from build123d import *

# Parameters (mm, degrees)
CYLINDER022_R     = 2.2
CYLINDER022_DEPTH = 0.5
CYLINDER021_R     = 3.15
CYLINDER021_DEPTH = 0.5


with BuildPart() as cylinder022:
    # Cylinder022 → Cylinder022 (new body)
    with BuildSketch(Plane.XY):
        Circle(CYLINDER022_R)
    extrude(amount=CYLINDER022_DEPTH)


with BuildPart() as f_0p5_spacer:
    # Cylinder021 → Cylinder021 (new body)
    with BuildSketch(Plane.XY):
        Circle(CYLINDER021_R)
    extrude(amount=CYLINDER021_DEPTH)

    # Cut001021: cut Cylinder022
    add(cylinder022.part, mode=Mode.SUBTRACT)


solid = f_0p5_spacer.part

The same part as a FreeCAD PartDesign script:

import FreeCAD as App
import Part
import Sketcher
from FreeCAD import Vector
Q = App.Units.Quantity

doc = App.newDocument("Part")
body = doc.addObject("PartDesign::Body", "Body")

# Sketch on XY plane
sketch1 = doc.addObject("Sketcher::SketchObject", "Sketch")
body.addObject(sketch1)
sketch1.AttachmentSupport = (doc.XY_Plane, [""])
sketch1.MapMode = "FlatFace"
sketch1.addGeometry(Part.Circle(Vector(0, 0, 0), Vector(0, 0, 1), 2.2), False)
sketch1.addConstraint(Sketcher.Constraint("Coincident", 0, 3, -1, 1))
sketch1.addConstraint(Sketcher.Constraint("Diameter", 0, Q("4.4 mm")))
pad1 = doc.addObject("PartDesign::Pad", "Pad")
body.addObject(pad1)
pad1.Profile = sketch1
pad1.Length = 0.5
body2 = doc.addObject("PartDesign::Body", "Body001")

# Sketch on XY plane
sketch2 = doc.addObject("Sketcher::SketchObject", "Sketch001")
body2.addObject(sketch2)
sketch2.AttachmentSupport = (doc.getObject("XY_Plane001"), [""])
sketch2.MapMode = "FlatFace"
sketch2.addGeometry(Part.Circle(Vector(0, 0, 0), Vector(0, 0, 1), 3.15), False)
sketch2.addConstraint(Sketcher.Constraint("Coincident", 0, 3, -1, 1))
sketch2.addConstraint(Sketcher.Constraint("Diameter", 0, Q("6.3 mm")))
pad2 = doc.addObject("PartDesign::Pad", "Pad001")
body2.addObject(pad2)
pad2.Profile = sketch2
pad2.Length = 0.5
doc.recompute()

boolean = doc.addObject("PartDesign::Boolean", "Boolean")
body2.addObject(boolean)
boolean.Type = "Cut"
boolean.addObjects([body])

doc.recompute()
